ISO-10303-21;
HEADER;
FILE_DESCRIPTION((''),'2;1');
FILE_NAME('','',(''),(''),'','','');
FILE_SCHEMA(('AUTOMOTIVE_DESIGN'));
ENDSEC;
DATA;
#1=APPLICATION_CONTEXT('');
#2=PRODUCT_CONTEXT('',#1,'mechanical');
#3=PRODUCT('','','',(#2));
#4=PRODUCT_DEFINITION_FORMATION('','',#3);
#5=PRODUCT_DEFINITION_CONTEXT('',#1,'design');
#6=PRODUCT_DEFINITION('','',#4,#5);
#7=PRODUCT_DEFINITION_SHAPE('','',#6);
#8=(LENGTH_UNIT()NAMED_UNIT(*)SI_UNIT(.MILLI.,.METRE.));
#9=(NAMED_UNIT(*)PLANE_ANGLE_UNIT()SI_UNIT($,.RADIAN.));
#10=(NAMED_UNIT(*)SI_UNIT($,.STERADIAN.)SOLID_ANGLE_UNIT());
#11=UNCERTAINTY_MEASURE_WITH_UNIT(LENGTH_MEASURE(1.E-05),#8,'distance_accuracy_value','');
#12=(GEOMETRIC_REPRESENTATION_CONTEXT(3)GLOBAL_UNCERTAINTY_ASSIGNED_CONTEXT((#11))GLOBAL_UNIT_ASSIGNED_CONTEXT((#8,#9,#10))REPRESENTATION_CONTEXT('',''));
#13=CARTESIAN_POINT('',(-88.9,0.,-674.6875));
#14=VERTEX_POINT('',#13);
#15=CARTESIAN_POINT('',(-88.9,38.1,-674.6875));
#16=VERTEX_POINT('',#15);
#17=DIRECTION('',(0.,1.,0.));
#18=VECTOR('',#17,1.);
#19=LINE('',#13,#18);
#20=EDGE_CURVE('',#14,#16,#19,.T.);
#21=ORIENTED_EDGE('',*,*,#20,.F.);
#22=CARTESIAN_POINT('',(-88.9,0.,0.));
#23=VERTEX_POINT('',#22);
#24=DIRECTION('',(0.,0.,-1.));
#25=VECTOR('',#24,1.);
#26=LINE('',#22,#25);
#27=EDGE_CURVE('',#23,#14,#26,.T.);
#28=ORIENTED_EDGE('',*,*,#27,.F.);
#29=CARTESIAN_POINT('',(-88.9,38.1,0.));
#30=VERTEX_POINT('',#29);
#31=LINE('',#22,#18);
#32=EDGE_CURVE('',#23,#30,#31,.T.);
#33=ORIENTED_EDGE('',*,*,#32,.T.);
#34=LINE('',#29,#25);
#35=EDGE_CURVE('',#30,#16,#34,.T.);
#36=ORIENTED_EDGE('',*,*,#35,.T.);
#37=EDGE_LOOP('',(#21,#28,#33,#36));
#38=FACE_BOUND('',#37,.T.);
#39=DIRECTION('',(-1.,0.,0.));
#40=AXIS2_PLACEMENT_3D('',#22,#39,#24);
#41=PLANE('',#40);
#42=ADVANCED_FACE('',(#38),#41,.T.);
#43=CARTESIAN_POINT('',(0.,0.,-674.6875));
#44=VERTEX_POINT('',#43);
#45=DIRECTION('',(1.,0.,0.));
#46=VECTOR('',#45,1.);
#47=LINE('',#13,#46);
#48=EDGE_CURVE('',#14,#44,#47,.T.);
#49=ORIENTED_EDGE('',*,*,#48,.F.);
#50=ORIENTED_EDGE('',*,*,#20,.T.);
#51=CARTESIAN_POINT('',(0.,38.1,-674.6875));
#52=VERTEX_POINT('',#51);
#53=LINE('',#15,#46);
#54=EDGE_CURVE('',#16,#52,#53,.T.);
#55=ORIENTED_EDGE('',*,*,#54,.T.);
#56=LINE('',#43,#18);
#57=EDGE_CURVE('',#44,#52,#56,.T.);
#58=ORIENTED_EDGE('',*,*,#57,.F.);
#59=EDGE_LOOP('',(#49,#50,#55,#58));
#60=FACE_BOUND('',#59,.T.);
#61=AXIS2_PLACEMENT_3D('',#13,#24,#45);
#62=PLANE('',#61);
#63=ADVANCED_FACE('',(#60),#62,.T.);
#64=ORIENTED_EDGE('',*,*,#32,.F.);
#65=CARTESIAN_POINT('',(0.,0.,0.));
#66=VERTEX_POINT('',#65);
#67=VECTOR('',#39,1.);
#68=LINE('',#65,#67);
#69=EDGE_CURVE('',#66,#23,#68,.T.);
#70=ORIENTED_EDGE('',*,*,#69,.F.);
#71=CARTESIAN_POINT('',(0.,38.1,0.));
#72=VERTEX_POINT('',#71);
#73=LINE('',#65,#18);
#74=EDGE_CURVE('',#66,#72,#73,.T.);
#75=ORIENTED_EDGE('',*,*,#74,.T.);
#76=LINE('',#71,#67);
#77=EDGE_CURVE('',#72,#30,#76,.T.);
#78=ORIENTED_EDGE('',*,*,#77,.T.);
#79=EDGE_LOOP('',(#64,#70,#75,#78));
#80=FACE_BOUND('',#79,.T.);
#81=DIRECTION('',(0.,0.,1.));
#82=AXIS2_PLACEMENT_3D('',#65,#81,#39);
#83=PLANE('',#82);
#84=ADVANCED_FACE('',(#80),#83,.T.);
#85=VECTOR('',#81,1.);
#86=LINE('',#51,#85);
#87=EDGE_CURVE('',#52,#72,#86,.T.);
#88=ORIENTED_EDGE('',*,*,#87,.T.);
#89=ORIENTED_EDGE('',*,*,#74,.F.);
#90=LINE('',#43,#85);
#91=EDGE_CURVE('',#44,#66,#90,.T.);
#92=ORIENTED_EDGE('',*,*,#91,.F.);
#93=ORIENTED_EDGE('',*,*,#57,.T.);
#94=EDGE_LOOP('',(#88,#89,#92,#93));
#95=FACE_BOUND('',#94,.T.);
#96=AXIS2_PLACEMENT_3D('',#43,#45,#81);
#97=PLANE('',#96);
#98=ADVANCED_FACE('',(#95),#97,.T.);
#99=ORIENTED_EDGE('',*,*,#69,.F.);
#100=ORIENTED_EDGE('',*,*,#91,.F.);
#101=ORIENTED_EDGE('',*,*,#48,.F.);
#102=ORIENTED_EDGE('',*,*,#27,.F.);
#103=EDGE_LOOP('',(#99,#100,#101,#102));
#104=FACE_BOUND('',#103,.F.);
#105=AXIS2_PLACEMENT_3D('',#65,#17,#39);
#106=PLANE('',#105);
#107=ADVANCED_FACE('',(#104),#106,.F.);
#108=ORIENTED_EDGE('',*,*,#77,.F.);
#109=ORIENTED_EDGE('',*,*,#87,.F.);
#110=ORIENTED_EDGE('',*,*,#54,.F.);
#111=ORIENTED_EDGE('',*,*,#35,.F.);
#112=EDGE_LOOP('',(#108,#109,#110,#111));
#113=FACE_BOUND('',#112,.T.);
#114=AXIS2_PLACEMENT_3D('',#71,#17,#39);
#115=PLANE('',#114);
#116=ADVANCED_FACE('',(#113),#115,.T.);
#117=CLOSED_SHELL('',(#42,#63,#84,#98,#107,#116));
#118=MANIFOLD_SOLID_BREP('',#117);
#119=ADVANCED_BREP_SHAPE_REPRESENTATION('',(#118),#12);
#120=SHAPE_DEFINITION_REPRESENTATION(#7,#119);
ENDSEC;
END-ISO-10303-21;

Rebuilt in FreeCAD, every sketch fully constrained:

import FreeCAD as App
import Part
import Sketcher

V = App.Vector
Q = App.Units.Quantity


def add_polygon(sketch, points):
    """Adds a closed chain of lines whose ends are joined by coincident constraints."""
    first, n = sketch.GeometryCount, len(points)
    for a, b in zip(points, points[1:] + points[:1]):
        sketch.addGeometry(Part.LineSegment(App.Vector(*a, 0), App.Vector(*b, 0)), False)
    for i in range(n):
        sketch.addConstraint(Sketcher.Constraint("Coincident", first + i, 2, first + (i + 1) % n, 1))

doc = App.newDocument("Part")
body = doc.addObject("PartDesign::Body", "Body")

# Sketch on XZ plane
sketch1 = body.newObject("Sketcher::SketchObject", "Sketch")
sketch1.AttachmentSupport = (doc.getObject("XZ_Plane"), [""])
sketch1.MapMode = "FlatFace"
add_polygon(sketch1, [(-89, 0), (0, 0), (0, -675), (-89, -675)])  # lines 0-3
sketch1.addConstraint(Sketcher.Constraint("Horizontal", 0))
sketch1.addConstraint(Sketcher.Constraint("Vertical", 1))
sketch1.addConstraint(Sketcher.Constraint("Horizontal", 2))
sketch1.addConstraint(Sketcher.Constraint("Vertical", 3))
sketch1.addConstraint(Sketcher.Constraint("Coincident", 0, 2, -1, 1))
sketch1.addConstraint(Sketcher.Constraint("DistanceX", 0, 1, 0, 2, Q("3.5 in")))
sketch1.addConstraint(Sketcher.Constraint("DistanceY", 1, 2, 1, 1, Q("26.5625 in")))
pad1 = body.newObject("PartDesign::Pad", "Pad")
pad1.Profile = sketch1
pad1.Length = Q("1.5 in")
pad1.Reversed = True

doc.recompute()
